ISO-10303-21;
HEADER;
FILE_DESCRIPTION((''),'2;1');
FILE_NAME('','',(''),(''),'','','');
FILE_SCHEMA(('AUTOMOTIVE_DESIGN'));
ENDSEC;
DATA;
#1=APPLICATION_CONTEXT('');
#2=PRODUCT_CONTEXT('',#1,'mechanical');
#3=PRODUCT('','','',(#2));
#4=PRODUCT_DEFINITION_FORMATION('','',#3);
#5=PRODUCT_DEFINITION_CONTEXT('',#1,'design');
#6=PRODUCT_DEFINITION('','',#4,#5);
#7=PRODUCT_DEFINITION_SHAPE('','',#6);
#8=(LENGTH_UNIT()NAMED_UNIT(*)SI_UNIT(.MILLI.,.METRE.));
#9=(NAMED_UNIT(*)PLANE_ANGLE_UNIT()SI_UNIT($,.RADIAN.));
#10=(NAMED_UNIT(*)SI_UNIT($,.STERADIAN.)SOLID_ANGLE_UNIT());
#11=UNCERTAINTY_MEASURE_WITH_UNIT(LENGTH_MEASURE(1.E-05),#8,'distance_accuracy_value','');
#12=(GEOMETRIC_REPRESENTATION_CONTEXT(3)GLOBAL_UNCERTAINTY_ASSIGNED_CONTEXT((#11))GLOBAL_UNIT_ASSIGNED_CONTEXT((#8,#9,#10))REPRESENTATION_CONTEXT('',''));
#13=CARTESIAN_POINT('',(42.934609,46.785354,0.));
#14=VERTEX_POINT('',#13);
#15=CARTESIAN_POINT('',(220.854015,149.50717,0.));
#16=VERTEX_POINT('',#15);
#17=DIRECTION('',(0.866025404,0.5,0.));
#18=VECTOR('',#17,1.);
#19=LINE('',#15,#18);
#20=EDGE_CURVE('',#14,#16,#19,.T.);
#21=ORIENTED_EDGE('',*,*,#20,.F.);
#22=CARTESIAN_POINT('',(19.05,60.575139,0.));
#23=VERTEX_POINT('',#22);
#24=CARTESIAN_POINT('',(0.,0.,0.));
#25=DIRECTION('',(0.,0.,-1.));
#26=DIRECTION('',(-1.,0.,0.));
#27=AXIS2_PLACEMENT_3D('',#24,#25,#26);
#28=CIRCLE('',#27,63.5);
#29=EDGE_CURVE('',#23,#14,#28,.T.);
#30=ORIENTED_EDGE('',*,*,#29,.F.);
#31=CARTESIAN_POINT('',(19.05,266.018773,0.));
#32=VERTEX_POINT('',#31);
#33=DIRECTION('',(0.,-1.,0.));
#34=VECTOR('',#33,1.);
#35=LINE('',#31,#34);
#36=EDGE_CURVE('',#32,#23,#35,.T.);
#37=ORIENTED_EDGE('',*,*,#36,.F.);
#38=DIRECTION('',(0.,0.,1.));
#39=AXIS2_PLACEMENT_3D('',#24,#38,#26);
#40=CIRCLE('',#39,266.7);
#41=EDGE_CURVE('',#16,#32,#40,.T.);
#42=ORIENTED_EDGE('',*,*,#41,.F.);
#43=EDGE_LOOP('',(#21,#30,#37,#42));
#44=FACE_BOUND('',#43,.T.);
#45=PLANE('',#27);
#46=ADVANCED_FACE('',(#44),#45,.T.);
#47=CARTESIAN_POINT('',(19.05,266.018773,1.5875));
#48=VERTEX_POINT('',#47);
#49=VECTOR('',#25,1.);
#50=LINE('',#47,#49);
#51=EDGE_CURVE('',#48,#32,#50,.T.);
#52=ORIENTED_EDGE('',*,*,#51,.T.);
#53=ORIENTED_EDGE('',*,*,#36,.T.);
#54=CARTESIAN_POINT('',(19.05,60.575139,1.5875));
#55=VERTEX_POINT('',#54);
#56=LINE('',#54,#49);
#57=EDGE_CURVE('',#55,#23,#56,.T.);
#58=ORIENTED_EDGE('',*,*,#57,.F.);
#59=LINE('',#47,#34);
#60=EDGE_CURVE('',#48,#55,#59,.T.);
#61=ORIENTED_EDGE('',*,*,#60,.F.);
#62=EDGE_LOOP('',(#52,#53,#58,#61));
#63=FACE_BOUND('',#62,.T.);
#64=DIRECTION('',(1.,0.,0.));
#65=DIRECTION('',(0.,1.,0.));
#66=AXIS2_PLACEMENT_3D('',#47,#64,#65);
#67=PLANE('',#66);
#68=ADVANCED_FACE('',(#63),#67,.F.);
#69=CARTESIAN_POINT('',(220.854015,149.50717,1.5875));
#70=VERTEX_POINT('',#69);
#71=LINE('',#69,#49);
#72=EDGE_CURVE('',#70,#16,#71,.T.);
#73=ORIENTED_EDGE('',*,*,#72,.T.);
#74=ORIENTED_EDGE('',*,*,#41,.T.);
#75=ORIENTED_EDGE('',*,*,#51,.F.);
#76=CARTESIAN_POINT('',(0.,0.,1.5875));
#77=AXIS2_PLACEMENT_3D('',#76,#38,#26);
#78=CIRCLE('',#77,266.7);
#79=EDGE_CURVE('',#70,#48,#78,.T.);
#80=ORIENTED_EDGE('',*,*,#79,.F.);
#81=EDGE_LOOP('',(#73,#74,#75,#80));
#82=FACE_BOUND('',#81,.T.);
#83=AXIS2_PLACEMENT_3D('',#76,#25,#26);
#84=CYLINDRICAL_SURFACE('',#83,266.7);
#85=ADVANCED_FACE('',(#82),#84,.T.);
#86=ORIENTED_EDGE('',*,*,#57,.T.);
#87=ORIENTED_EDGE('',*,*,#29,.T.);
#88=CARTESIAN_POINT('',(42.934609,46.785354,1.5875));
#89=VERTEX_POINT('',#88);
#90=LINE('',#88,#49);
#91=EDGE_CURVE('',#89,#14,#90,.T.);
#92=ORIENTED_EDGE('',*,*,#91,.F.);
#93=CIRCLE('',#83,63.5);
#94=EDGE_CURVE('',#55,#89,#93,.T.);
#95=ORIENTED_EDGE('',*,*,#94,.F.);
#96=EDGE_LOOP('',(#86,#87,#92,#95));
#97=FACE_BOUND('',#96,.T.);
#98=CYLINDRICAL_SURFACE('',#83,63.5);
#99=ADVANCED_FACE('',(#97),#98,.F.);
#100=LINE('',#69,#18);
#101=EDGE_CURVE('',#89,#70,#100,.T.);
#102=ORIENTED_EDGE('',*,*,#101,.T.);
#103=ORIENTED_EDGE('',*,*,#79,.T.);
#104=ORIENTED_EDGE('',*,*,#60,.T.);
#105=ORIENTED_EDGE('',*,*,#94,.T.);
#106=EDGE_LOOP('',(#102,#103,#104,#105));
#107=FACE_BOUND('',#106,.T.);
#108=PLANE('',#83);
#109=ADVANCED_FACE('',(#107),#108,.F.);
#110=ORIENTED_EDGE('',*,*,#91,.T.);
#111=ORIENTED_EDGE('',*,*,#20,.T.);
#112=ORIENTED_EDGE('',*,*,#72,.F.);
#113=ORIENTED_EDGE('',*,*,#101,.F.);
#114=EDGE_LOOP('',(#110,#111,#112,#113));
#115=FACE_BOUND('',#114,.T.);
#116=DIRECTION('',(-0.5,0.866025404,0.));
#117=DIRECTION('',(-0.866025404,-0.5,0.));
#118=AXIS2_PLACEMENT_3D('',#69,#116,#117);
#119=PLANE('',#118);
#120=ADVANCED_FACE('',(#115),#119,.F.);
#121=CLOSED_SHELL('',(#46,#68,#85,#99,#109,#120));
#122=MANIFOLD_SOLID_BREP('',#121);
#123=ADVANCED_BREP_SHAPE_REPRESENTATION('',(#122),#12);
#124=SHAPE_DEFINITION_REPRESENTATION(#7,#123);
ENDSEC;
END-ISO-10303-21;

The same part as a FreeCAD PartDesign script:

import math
import FreeCAD as App
import Part
import Sketcher

V = App.Vector
Q = App.Units.Quantity

doc = App.newDocument("Part")
body = doc.addObject("PartDesign::Body", "Body")

# Sketch on XY plane
sketch1 = body.newObject("Sketcher::SketchObject", "Sketch")
sketch1.AttachmentSupport = (doc.getObject("XY_Plane"), [""])
sketch1.MapMode = "FlatFace"
sketch1.addGeometry(Part.LineSegment(V(19, 266, 0), V(19, 61, 0)), False)
sketch1.addGeometry(Part.ArcOfCircle(Part.Circle(V(0, 0, 0), V(0, 0, 1), 64), math.radians(47), math.radians(73)), False)
sketch1.addGeometry(Part.LineSegment(V(43, 47, 0), V(221, 150, 0)), False)
sketch1.addGeometry(Part.ArcOfCircle(Part.Circle(V(0, 0, 0), V(0, 0, 1), 267), math.radians(34), math.radians(86)), False)
sketch1.addConstraint(Sketcher.Constraint("Coincident", 0, 2, 1, 2))
sketch1.addConstraint(Sketcher.Constraint("Coincident", 1, 1, 2, 1))
sketch1.addConstraint(Sketcher.Constraint("Coincident", 2, 2, 3, 1))
sketch1.addConstraint(Sketcher.Constraint("Coincident", 3, 2, 0, 1))
sketch1.addConstraint(Sketcher.Constraint("Vertical", 0))
sketch1.addConstraint(Sketcher.Constraint("Coincident", 1, 3, -1, 1))
sketch1.addConstraint(Sketcher.Constraint("Coincident", 3, 3, -1, 1))
sketch1.addConstraint(Sketcher.Constraint("Radius", 1, Q("2.5 in")))
sketch1.addConstraint(Sketcher.Constraint("Radius", 3, Q("10.5 in")))
sketch1.addConstraint(Sketcher.Constraint("Angle", 2, Q("30 deg")))
sketch1.addConstraint(Sketcher.Constraint("DistanceX", -1, 1, 0, 2, Q("0.75 in")))
sketch1.addConstraint(Sketcher.Constraint("DistanceX", -1, 1, 1, 1, 42.934609))
pad1 = body.newObject("PartDesign::Pad", "Pad")
pad1.Profile = sketch1
pad1.Length = Q("0.0625 in")

doc.recompute()
